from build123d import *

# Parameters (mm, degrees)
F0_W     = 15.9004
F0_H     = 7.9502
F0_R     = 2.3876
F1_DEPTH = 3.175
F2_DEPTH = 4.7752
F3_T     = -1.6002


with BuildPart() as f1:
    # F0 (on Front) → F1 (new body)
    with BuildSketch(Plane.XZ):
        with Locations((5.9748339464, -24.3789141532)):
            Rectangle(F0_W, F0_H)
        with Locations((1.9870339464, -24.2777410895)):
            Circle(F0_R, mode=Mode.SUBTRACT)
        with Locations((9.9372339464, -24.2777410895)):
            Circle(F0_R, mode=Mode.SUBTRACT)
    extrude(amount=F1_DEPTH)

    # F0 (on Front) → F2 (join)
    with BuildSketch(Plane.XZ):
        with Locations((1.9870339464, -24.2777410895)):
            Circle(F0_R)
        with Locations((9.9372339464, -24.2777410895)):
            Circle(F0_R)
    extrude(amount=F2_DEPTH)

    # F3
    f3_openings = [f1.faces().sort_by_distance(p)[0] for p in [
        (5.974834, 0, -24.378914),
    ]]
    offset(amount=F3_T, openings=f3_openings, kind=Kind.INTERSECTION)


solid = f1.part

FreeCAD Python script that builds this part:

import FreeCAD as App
import Part
import Sketcher
Q = App.Units.Quantity


def faces_at(feature, points):
    """Names of the faces that lie closest to the given points."""
    faces = feature.Shape.Faces
    near = lambda p: min(range(len(faces)), key=lambda i: faces[i].distToShape(Part.Vertex(*p))[0])
    return sorted({f"Face{near(p) + 1}" for p in points})

doc = App.newDocument("Part")
body = doc.addObject("PartDesign::Body", "Body")

# Sketch on XZ plane
sketch1 = body.newObject("Sketcher::SketchObject", "Sketch")
sketch1.AttachmentSupport = (doc.getObject("XZ_Plane"), [""])
sketch1.MapMode = "FlatFace"
sketch1.addGeometry([
    Part.LineSegment(App.Vector(-2, -20.4, 0), App.Vector(-2, -28.4, 0)),  # 0
    Part.LineSegment(App.Vector(-2, -28.4, 0), App.Vector(13.9, -28.4, 0)),  # 1
    Part.LineSegment(App.Vector(13.9, -28.4, 0), App.Vector(13.9, -20.4, 0)),  # 2
    Part.LineSegment(App.Vector(13.9, -20.4, 0), App.Vector(-2, -20.4, 0)),  # 3
    Part.Circle(App.Vector(2, -24.3, 0), App.Vector(0, 0, 1), 2.4),  # 4
    Part.Circle(App.Vector(9.9, -24.3, 0), App.Vector(0, 0, 1), 2.4),  # 5
], False)
sketch1.addConstraint([
    Sketcher.Constraint("Coincident", 0, 2, 1, 1),
    Sketcher.Constraint("Coincident", 1, 2, 2, 1),
    Sketcher.Constraint("Coincident", 2, 2, 3, 1),
    Sketcher.Constraint("Coincident", 3, 2, 0, 1),
    Sketcher.Constraint("Vertical", 0),
    Sketcher.Constraint("Horizontal", 1),
    Sketcher.Constraint("Vertical", 2),
    Sketcher.Constraint("Horizontal", 3),
    Sketcher.Constraint("Equal", 4, 5),
    Sketcher.Constraint("Horizontal", 4, 3, 5, 3),
    Sketcher.Constraint("Diameter", 4, Q("0.188 in")),
    Sketcher.Constraint("DistanceX", 1, 1, 1, 2, Q("0.626 in")),
    Sketcher.Constraint("DistanceY", 0, 2, 0, 1, Q("0.313 in")),
    Sketcher.Constraint("DistanceX", 4, 3, 1, 2, Q("0.47 in")),
    Sketcher.Constraint("DistanceX", 4, 3, 5, 3, Q("0.313 in")),
    Sketcher.Constraint("DistanceY", 4, 3, -1, 1, 24.277741),
    Sketcher.Constraint("DistanceX", -1, 1, 4, 3, 1.987034),
    Sketcher.Constraint("DistanceY", 0, 2, -1, 1, 28.354014),
])
pad1 = body.newObject("PartDesign::Pad", "Pad")
pad1.Profile = sketch1
pad1.Length = Q("0.125 in")

# Sketch on XZ plane
sketch2 = body.newObject("Sketcher::SketchObject", "Sketch001")
sketch2.AttachmentSupport = (doc.getObject("XZ_Plane"), [""])
sketch2.MapMode = "FlatFace"
sketch2.addGeometry([
    Part.Circle(App.Vector(2, -24.3, 0), App.Vector(0, 0, 1), 2.4),
    Part.Circle(App.Vector(9.9, -24.3, 0), App.Vector(0, 0, 1), 2.4),
], False)
sketch2.addConstraint([
    Sketcher.Constraint("Equal", 0, 1),
    Sketcher.Constraint("Horizontal", 0, 3, 1, 3),
    Sketcher.Constraint("Diameter", 0, Q("0.188 in")),
    Sketcher.Constraint("DistanceX", 0, 3, 1, 3, Q("0.313 in")),
    Sketcher.Constraint("DistanceY", 0, 3, -1, 1, 24.277741),
    Sketcher.Constraint("DistanceX", -1, 1, 0, 3, 1.987034),
])
pad2 = body.newObject("PartDesign::Pad", "Pad001")
pad2.Profile = sketch2
pad2.Length = Q("0.188 in")
doc.recompute()

thickness = body.newObject("PartDesign::Thickness", "Thickness")
thickness.Base = (pad2, faces_at(pad2, [(5.975, 0, -24.379)]))
thickness.Value = Q("0.063 in")
thickness.Reversed = True
thickness.Join = "Intersection"

doc.recompute()
